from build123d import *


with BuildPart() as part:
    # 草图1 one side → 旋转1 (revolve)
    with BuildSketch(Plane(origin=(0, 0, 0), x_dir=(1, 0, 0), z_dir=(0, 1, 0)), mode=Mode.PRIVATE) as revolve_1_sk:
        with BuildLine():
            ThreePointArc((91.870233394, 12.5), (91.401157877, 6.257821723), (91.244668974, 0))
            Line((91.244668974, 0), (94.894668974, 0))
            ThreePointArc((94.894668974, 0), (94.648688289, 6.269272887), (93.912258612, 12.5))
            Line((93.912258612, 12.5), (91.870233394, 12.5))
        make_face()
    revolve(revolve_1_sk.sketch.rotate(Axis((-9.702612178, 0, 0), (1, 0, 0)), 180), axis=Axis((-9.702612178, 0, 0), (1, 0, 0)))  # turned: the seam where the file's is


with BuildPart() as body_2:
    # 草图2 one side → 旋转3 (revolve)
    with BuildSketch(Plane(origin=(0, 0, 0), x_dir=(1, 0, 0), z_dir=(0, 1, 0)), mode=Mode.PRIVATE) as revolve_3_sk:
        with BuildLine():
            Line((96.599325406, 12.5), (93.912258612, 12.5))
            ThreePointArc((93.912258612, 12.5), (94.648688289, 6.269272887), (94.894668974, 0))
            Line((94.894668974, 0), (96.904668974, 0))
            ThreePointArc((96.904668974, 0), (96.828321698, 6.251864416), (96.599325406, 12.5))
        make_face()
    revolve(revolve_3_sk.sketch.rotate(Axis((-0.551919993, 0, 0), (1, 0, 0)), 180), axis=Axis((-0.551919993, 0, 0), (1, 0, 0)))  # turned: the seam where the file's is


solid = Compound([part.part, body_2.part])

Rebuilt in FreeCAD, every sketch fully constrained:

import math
import FreeCAD as App
import Part
import Sketcher

V = App.Vector

doc = App.newDocument("Part")
body = doc.addObject("PartDesign::Body", "Body")

sketch1 = body.newObject("Sketcher::SketchObject", "Sketch")
sketch1.AttachmentSupport = (doc.getObject("XZ_Plane"), [""])
sketch1.MapMode = "FlatFace"
sketch1.addGeometry([
    Part.ArcOfCircle(Part.Circle(V(216.444669, 0, 0), V(0, 0, 1), 125.2), math.radians(180), math.radians(185.729972)),
    Part.LineSegment(V(91.244669, 0, 0), V(94.894669, 0, 0)),
    Part.ArcOfCircle(Part.Circle(V(14.879669, 0, 0), V(0, 0, 1), 80.015), math.radians(-8.9876), math.radians(0)),
    Part.LineSegment(V(93.912259, -12.5, 0), V(91.870233, -12.5, 0)),
], False)
sketch1.addConstraint([
    Sketcher.Constraint("Coincident", 0, 1, 1, 1),
    Sketcher.Constraint("Coincident", 1, 2, 2, 2),
    Sketcher.Constraint("Coincident", 2, 1, 3, 1),
    Sketcher.Constraint("Coincident", 3, 2, 0, 2),
    Sketcher.Constraint("Horizontal", 1),
    Sketcher.Constraint("Horizontal", 3),
    Sketcher.Constraint("PointOnObject", 0, 3, -1),
    Sketcher.Constraint("PointOnObject", 2, 3, -1),
    Sketcher.Constraint("PointOnObject", 0, 1, -1),
    Sketcher.Constraint("Radius", 0, 125.2),
    Sketcher.Constraint("Radius", 2, 80.015),
    Sketcher.Constraint("DistanceX", 1, 1, 1, 2, 3.65),
    Sketcher.Constraint("DistanceY", 2, 1, -1, 1, 12.5),
    Sketcher.Constraint("DistanceX", -1, 1, 0, 3, 216.444669),
])
revolution = body.newObject("PartDesign::Revolution", "Revolution")
revolution.Profile = sketch1
revolution.ReferenceAxis = (sketch1, ["H_Axis"])
revolution.Angle = 360
body2 = doc.addObject("PartDesign::Body", "Body001")

sketch2 = body2.newObject("Sketcher::SketchObject", "Sketch001")
sketch2.AttachmentSupport = (doc.getObject("XZ_Plane001"), [""])
sketch2.MapMode = "FlatFace"
sketch2.addGeometry([
    Part.LineSegment(V(96.599325, -12.5, 0), V(93.912259, -12.5, 0)),
    Part.ArcOfCircle(Part.Circle(V(14.879669, 0, 0), V(0, 0, 1), 80.015), math.radians(-8.9876), math.radians(0)),
    Part.LineSegment(V(94.894669, 0, 0), V(96.904669, 0, 0)),
    Part.ArcOfCircle(Part.Circle(V(-159.10733, 0, 0), V(0, 0, 1), 256.011999), math.radians(-2.798627), math.radians(0)),
], False)
sketch2.addConstraint([
    Sketcher.Constraint("Coincident", 0, 2, 1, 1),
    Sketcher.Constraint("Coincident", 1, 2, 2, 1),
    Sketcher.Constraint("Coincident", 2, 2, 3, 2),
    Sketcher.Constraint("Coincident", 3, 1, 0, 1),
    Sketcher.Constraint("Horizontal", 0),
    Sketcher.Constraint("Horizontal", 2),
    Sketcher.Constraint("PointOnObject", 1, 3, -1),
    Sketcher.Constraint("PointOnObject", 3, 3, -1),
    Sketcher.Constraint("PointOnObject", 1, 2, -1),
    Sketcher.Constraint("Radius", 1, 80.015),
    Sketcher.Constraint("Radius", 3, 256.011999),
    Sketcher.Constraint("DistanceX", 2, 1, 2, 2, 2.01),
    Sketcher.Constraint("DistanceY", 0, 2, -1, 1, 12.5),
    Sketcher.Constraint("DistanceX", -1, 1, 1, 3, 14.879669),
])
revolution2 = body2.newObject("PartDesign::Revolution", "Revolution001")
revolution2.Profile = sketch2
revolution2.ReferenceAxis = (sketch2, ["H_Axis"])
revolution2.Angle = 360

doc.recompute()
